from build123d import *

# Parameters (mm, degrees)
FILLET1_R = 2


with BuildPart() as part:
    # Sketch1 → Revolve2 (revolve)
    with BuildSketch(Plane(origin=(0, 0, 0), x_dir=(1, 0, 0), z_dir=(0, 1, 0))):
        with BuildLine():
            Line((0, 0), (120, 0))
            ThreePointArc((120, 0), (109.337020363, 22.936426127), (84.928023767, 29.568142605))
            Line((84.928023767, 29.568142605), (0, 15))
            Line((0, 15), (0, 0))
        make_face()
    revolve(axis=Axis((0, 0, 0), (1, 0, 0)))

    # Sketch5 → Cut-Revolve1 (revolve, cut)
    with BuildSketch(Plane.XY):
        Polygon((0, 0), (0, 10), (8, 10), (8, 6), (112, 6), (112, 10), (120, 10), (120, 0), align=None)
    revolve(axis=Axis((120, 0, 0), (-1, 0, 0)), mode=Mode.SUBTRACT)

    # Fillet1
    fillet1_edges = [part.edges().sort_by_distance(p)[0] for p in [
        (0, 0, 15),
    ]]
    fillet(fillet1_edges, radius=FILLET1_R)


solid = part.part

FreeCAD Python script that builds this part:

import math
import FreeCAD as App
import Part
import Sketcher


def edges_at(feature, points):
    """Names of the edges that pass closest to the given points."""
    edges = feature.Shape.Edges
    near = lambda p: min(range(len(edges)), key=lambda i: edges[i].distToShape(Part.Vertex(*p))[0])
    return sorted({f"Edge{near(p) + 1}" for p in points})


def add_polygon(sketch, points):
    """Adds a closed chain of lines whose ends are joined by coincident constraints."""
    first, n = sketch.GeometryCount, len(points)
    for a, b in zip(points, points[1:] + points[:1]):
        sketch.addGeometry(Part.LineSegment(App.Vector(*a, 0), App.Vector(*b, 0)), False)
    for i in range(n):
        sketch.addConstraint(Sketcher.Constraint("Coincident", first + i, 2, first + (i + 1) % n, 1))

doc = App.newDocument("Part")
params = doc.addObject("Spreadsheet::Sheet", "Params")
for row, (alias, value) in enumerate([
    ("sketch1_radius", "30 mm"),
    ("sketch1_width", "120 mm"),
    ("sketch1_height", "15 mm"),
    ("revolution_angle", "360 deg"),
    ("sketch2_width", "120 mm"),
    ("sketch2_width2", "8 mm"),
    ("sketch2_height", "10 mm"),
    ("sketch2_height2", "4 mm"),
    ("groove_angle", "360 deg"),
    ("fillet_radius", "2 mm"),
], start=1):
    params.set(f"A{row}", alias)
    params.set(f"B{row}", "=" + value)
    params.setAlias(f"B{row}", alias)

body = doc.addObject("PartDesign::Body", "Body")

sketch1 = body.newObject("Sketcher::SketchObject", "Sketch")
sketch1.AttachmentSupport = (doc.getObject("XZ_Plane"), [""])
sketch1.MapMode = "FlatFace"
sketch1.addGeometry(Part.LineSegment(App.Vector(0, 0, 0), App.Vector(120, 0, 0)), False)
sketch1.addGeometry(Part.ArcOfCircle(Part.Circle(App.Vector(90, 0, 0), App.Vector(0, 0, 1), 30), math.radians(-99.733511), math.radians(0)), False)
sketch1.addGeometry(Part.LineSegment(App.Vector(84.928024, -29.568143, 0), App.Vector(0, -15, 0)), False)
sketch1.addGeometry(Part.LineSegment(App.Vector(0, -15, 0), App.Vector(0, 0, 0)), False)
sketch1.addConstraint(Sketcher.Constraint("Coincident", 0, 2, 1, 2))
sketch1.addConstraint(Sketcher.Constraint("Tangent", 1, 1, 2, 1))
sketch1.addConstraint(Sketcher.Constraint("Coincident", 2, 2, 3, 1))
sketch1.addConstraint(Sketcher.Constraint("Coincident", 3, 2, 0, 1))
sketch1.addConstraint(Sketcher.Constraint("Horizontal", 0))
sketch1.addConstraint(Sketcher.Constraint("Vertical", 3))
sketch1.addConstraint(Sketcher.Constraint("Coincident", 3, 2, -1, 1))
sketch1.addConstraint(Sketcher.Constraint("PointOnObject", 1, 3, -1))
sketch1.addConstraint(Sketcher.Constraint("Radius", 1, 30.0))
sketch1.addConstraint(Sketcher.Constraint("DistanceX", 0, 1, 0, 2, 120.0))
sketch1.addConstraint(Sketcher.Constraint("DistanceY", 3, 1, 3, 2, 15.0))
sketch1.setExpression("Constraints[8]", "Params.sketch1_radius")
sketch1.setExpression("Constraints[9]", "Params.sketch1_width")
sketch1.setExpression("Constraints[10]", "Params.sketch1_height")
revolution = body.newObject("PartDesign::Revolution", "Revolution")
revolution.Profile = sketch1
revolution.ReferenceAxis = (sketch1, ["H_Axis"])
revolution.setExpression("Angle", "Params.revolution_angle")

sketch2 = body.newObject("Sketcher::SketchObject", "Sketch001")
sketch2.AttachmentSupport = (doc.getObject("XY_Plane"), [""])
sketch2.MapMode = "FlatFace"
add_polygon(sketch2, [(0, 10), (0, 0), (120, 0), (120, 10), (112, 10), (112, 6), (8, 6), (8, 10)])
sketch2.addConstraint(Sketcher.Constraint("Vertical", 0))
sketch2.addConstraint(Sketcher.Constraint("Horizontal", 1))
sketch2.addConstraint(Sketcher.Constraint("Vertical", 2))
sketch2.addConstraint(Sketcher.Constraint("Horizontal", 3))
sketch2.addConstraint(Sketcher.Constraint("Vertical", 4))
sketch2.addConstraint(Sketcher.Constraint("Horizontal", 5))
sketch2.addConstraint(Sketcher.Constraint("Vertical", 6))
sketch2.addConstraint(Sketcher.Constraint("Horizontal", 7))
sketch2.addConstraint(Sketcher.Constraint("Coincident", 0, 2, -1, 1))
sketch2.addConstraint(Sketcher.Constraint("Horizontal", 3, 2, 6, 2))
sketch2.addConstraint(Sketcher.Constraint("Equal", 3, 7))
sketch2.addConstraint(Sketcher.Constraint("DistanceX", 1, 1, 1, 2, 120.0))
sketch2.addConstraint(Sketcher.Constraint("DistanceX", 3, 2, 3, 1, 8.0))
sketch2.addConstraint(Sketcher.Constraint("DistanceY", 0, 2, 0, 1, 10.0))
sketch2.addConstraint(Sketcher.Constraint("DistanceY", 4, 2, 4, 1, 4.0))
sketch2.setExpression("Constraints[19]", "Params.sketch2_width")
sketch2.setExpression("Constraints[20]", "Params.sketch2_width2")
sketch2.setExpression("Constraints[21]", "Params.sketch2_height")
sketch2.setExpression("Constraints[22]", "Params.sketch2_height2")
groove = body.newObject("PartDesign::Groove", "Groove")
groove.Profile = sketch2
groove.ReferenceAxis = (sketch2, ["H_Axis"])
groove.setExpression("Angle", "Params.groove_angle")
doc.recompute()

fillet = body.newObject("PartDesign::Fillet", "Fillet")
fillet.Base = (groove, edges_at(groove, [(0, 0, 15)]))
fillet.setExpression("Radius", "Params.fillet_radius")

doc.recompute()
